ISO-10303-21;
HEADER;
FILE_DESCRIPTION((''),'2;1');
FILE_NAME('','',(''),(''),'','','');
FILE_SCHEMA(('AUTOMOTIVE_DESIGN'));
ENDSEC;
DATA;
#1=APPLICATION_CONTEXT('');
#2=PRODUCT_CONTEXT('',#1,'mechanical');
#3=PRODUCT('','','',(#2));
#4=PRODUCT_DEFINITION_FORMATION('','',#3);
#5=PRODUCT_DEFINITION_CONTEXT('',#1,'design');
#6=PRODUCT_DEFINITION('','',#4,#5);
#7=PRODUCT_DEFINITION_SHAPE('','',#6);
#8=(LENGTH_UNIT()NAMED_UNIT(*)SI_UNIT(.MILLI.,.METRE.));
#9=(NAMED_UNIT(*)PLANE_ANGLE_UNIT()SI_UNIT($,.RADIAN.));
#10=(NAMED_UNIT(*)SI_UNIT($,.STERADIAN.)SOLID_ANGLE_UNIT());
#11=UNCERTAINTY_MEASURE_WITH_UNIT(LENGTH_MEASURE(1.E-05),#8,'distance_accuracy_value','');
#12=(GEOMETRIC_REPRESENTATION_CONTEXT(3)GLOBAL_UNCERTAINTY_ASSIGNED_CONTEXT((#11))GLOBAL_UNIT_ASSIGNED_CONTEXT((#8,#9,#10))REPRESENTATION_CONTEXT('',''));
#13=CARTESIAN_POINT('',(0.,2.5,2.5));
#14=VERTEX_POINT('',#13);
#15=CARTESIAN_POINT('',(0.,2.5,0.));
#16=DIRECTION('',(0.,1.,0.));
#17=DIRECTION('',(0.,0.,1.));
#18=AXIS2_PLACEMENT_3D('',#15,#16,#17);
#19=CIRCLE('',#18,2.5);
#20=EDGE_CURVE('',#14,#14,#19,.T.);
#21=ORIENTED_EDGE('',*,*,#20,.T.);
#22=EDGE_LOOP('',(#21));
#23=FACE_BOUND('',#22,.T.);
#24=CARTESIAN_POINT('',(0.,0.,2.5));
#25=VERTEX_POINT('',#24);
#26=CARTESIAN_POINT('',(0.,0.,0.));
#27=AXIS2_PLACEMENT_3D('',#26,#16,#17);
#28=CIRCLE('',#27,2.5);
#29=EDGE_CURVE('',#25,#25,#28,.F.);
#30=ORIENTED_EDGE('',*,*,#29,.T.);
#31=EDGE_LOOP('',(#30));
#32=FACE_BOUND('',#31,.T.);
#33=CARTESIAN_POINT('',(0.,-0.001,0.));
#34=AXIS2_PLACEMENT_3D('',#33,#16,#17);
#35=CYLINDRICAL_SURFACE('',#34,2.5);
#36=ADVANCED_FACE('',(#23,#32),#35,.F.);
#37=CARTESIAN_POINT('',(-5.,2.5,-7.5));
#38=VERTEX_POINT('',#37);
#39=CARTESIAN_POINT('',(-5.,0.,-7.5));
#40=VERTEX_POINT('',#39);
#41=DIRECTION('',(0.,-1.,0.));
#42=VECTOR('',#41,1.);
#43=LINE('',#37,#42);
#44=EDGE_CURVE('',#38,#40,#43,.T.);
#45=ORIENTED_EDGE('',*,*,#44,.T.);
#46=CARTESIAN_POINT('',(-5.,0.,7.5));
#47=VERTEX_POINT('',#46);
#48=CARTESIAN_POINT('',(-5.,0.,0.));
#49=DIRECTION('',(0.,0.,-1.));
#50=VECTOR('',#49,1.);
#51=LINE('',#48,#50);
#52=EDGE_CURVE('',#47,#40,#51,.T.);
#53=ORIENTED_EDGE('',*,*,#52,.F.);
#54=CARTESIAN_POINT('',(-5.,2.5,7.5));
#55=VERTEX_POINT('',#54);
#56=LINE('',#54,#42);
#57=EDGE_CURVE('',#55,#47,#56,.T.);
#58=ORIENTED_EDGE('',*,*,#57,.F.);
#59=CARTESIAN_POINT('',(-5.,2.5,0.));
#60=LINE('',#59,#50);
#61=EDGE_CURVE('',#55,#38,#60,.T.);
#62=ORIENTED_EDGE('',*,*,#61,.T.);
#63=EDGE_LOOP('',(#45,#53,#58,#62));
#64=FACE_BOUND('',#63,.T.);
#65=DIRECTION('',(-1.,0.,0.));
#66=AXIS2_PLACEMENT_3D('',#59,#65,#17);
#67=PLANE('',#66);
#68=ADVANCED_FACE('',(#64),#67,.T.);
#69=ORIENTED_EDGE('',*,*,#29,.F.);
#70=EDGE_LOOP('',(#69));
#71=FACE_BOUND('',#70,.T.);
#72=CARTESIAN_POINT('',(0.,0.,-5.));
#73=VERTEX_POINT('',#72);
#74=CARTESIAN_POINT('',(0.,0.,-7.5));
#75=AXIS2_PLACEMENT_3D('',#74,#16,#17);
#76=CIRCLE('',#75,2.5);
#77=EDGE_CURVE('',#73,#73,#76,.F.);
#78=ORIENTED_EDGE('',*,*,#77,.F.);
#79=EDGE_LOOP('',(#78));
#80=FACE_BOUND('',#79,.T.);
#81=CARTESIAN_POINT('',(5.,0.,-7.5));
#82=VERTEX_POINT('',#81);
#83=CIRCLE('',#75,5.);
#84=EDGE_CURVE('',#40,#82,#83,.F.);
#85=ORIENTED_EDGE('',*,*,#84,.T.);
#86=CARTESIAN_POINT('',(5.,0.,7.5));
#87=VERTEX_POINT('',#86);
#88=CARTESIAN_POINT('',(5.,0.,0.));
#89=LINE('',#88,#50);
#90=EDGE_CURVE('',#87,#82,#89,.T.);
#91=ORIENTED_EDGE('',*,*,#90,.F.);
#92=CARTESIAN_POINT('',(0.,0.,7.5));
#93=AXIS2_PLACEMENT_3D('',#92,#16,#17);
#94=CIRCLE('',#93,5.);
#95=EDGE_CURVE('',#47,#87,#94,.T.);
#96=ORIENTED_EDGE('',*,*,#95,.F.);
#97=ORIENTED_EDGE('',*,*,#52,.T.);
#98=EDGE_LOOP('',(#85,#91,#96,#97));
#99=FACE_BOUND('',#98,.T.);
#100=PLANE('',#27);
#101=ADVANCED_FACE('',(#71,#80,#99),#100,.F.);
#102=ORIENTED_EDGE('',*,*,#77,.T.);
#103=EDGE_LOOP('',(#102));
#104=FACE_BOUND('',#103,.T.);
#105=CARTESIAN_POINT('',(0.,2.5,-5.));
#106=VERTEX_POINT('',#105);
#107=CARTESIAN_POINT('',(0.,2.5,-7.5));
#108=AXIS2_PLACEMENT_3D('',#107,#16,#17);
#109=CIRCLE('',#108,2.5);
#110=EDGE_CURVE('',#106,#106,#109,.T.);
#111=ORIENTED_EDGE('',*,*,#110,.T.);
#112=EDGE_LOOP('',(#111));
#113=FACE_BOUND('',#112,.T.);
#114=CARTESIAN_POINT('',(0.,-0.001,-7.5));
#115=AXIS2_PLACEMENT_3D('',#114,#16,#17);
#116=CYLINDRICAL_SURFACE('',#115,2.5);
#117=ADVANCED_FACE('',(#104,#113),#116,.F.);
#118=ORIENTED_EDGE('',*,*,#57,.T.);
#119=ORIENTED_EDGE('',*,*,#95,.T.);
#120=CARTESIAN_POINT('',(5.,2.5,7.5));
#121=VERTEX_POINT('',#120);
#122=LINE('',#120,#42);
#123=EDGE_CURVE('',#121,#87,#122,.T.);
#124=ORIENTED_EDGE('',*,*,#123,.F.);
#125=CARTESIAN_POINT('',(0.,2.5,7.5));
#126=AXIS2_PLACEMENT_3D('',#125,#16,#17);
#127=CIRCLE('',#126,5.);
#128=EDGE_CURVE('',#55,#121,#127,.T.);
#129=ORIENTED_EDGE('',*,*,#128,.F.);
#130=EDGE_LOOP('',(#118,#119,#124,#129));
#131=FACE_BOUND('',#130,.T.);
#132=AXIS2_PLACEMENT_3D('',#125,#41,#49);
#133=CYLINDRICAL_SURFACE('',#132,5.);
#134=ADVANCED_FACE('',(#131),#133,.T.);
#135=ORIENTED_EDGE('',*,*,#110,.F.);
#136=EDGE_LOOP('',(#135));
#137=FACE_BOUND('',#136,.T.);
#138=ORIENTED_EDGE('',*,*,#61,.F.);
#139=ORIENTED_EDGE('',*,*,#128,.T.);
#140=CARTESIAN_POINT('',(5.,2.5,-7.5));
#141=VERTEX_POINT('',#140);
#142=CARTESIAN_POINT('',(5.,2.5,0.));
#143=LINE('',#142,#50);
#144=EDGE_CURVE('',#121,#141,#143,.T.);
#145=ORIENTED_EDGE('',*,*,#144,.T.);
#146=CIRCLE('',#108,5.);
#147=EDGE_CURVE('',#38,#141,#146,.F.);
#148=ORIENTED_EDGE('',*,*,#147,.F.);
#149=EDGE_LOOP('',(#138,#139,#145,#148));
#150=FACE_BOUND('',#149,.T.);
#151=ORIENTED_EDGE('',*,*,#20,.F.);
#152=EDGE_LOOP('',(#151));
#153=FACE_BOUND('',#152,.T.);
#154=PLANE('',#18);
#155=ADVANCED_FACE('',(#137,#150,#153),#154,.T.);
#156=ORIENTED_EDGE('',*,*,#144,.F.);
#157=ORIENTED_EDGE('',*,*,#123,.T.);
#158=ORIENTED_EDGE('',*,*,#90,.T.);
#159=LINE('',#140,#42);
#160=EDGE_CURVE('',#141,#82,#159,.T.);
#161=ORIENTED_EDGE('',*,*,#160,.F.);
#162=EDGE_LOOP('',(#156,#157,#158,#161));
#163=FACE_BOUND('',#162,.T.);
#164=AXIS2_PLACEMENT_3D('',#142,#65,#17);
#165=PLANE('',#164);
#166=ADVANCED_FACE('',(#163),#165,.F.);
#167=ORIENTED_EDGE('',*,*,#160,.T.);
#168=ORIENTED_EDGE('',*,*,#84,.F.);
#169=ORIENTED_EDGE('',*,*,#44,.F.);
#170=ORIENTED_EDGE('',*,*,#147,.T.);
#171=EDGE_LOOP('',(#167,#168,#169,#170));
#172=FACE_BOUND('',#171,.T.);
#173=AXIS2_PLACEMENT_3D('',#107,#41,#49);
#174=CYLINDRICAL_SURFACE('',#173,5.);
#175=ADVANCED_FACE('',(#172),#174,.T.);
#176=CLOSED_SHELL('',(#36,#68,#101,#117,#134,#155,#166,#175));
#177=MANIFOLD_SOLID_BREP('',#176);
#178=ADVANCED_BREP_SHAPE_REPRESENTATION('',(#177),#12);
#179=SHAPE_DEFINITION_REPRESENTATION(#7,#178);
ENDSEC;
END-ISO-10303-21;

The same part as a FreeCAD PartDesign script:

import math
import FreeCAD as App
import Part
import Sketcher

doc = App.newDocument("Part")
body = doc.addObject("PartDesign::Body", "Body")

# Sketch on XZ plane
sketch1 = doc.addObject("Sketcher::SketchObject", "Sketch")
body.addObject(sketch1)
sketch1.AttachmentSupport = (doc.XZ_Plane, [""])
sketch1.MapMode = "FlatFace"
sketch1.addGeometry([
    Part.ArcOfCircle(Part.Circle(App.Vector(0, -8, 0), App.Vector(0, 0, 1), 5), math.radians(180), math.radians(360)),
    Part.LineSegment(App.Vector(-5, -8, 0), App.Vector(-5, 8, 0)),
    Part.ArcOfCircle(Part.Circle(App.Vector(0, 8, 0), App.Vector(0, 0, 1), 5), math.radians(0), math.radians(180)),
    Part.LineSegment(App.Vector(5, 8, 0), App.Vector(5, -8, 0)),
], False)
sketch1.addConstraint([
    Sketcher.Constraint("Tangent", 0, 1, 1, 1),
    Sketcher.Constraint("Tangent", 1, 2, 2, 2),
    Sketcher.Constraint("Tangent", 2, 1, 3, 1),
    Sketcher.Constraint("Tangent", 3, 2, 0, 2),
    Sketcher.Constraint("Vertical", 1),
    Sketcher.Constraint("Vertical", 3),
    Sketcher.Constraint("Symmetric", 0, 3, 2, 3, -1, 1),
    Sketcher.Constraint("Radius", 0, 5.0),
    Sketcher.Constraint("DistanceY", 1, 1, 1, 2, 15.0),
])
pad1 = doc.addObject("PartDesign::Pad", "Pad")
body.addObject(pad1)
pad1.Profile = sketch1
pad1.Length = 2.5
pad1.Reversed = True

# Sketch on XZ plane
sketch2 = doc.addObject("Sketcher::SketchObject", "Sketch001")
body.addObject(sketch2)
sketch2.AttachmentSupport = (doc.XZ_Plane, [""])
sketch2.MapMode = "FlatFace"
sketch2.AttachmentOffset = App.Placement(App.Vector(0, 0, -2.5), App.Rotation())
sketch2.addGeometry(Part.Circle(App.Vector(0, -7.5, 0), App.Vector(0, 0, 1), 2.5), False)
sketch2.addConstraint([
    Sketcher.Constraint("PointOnObject", 0, 3, -2),
    Sketcher.Constraint("Diameter", 0, 5.0),
    Sketcher.Constraint("DistanceY", 0, 3, -1, 1, 7.5),
])
pocket1 = doc.addObject("PartDesign::Pocket", "Pocket")
body.addObject(pocket1)
pocket1.Profile = sketch2
pocket1.Type = "UpToFirst"
pocket1.Reversed = True

# Sketch on XZ plane
sketch3 = doc.addObject("Sketcher::SketchObject", "Sketch002")
body.addObject(sketch3)
sketch3.AttachmentSupport = (doc.XZ_Plane, [""])
sketch3.MapMode = "FlatFace"
sketch3.AttachmentOffset = App.Placement(App.Vector(0, 0, -2.5), App.Rotation())
sketch3.addGeometry(Part.Circle(App.Vector(0, 0, 0), App.Vector(0, 0, 1), 2.5), False)
sketch3.addConstraint([
    Sketcher.Constraint("Coincident", 0, 3, -1, 1),
    Sketcher.Constraint("Diameter", 0, 5.0),
])
pocket2 = doc.addObject("PartDesign::Pocket", "Pocket001")
body.addObject(pocket2)
pocket2.Profile = sketch3
pocket2.Type = "UpToFirst"
pocket2.Reversed = True

doc.recompute()
